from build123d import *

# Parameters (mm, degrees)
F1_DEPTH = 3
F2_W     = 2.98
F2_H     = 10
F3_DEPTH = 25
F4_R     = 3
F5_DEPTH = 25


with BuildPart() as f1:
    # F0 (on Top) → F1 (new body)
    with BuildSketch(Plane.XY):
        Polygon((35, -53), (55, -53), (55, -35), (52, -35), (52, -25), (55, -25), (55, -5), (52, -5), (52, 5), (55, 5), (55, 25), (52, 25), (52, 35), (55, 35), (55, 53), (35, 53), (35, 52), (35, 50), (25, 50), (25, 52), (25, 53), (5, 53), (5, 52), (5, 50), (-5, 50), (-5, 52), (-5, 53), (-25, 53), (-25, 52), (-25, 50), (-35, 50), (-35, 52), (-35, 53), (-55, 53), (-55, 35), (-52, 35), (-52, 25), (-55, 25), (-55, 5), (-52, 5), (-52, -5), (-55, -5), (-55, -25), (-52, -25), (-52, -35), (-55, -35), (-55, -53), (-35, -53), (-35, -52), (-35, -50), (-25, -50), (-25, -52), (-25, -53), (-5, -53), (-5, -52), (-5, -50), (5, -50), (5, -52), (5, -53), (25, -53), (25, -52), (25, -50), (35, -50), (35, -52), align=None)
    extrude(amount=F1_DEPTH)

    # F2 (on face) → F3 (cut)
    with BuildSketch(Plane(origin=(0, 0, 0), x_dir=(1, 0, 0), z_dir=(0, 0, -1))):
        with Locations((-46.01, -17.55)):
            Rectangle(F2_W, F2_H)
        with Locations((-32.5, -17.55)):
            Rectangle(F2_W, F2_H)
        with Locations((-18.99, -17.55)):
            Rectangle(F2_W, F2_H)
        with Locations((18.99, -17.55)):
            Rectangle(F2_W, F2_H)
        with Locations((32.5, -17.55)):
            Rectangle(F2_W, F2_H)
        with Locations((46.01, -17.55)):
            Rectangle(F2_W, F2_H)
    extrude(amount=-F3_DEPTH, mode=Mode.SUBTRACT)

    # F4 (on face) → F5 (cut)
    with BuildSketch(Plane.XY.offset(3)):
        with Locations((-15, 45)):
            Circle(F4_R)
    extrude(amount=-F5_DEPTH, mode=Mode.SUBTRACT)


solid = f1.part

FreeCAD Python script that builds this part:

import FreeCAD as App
import Part
import Sketcher

V = App.Vector
Q = App.Units.Quantity

doc = App.newDocument("Part")
body = doc.addObject("PartDesign::Body", "Body")

# Sketch on XY plane
sketch1 = body.newObject("Sketcher::SketchObject", "Sketch")
sketch1.AttachmentSupport = (doc.getObject("XY_Plane"), [""])
sketch1.MapMode = "FlatFace"
sketch1.addGeometry([
    Part.LineSegment(V(35, -53, 0), V(55, -53, 0)),  # 0
    Part.LineSegment(V(55, -53, 0), V(55, -35, 0)),  # 1
    Part.LineSegment(V(55, -35, 0), V(52, -35, 0)),  # 2
    Part.LineSegment(V(52, -35, 0), V(52, -25, 0)),  # 3
    Part.LineSegment(V(52, -25, 0), V(55, -25, 0)),  # 4
    Part.LineSegment(V(55, -25, 0), V(55, -5, 0)),  # 5
    Part.LineSegment(V(55, -5, 0), V(52, -5, 0)),  # 6
    Part.LineSegment(V(52, -5, 0), V(52, 5, 0)),  # 7
    Part.LineSegment(V(52, 5, 0), V(55, 5, 0)),  # 8
    Part.LineSegment(V(55, 5, 0), V(55, 25, 0)),  # 9
    Part.LineSegment(V(55, 25, 0), V(52, 25, 0)),  # 10
    Part.LineSegment(V(52, 25, 0), V(52, 35, 0)),  # 11
    Part.LineSegment(V(52, 35, 0), V(55, 35, 0)),  # 12
    Part.LineSegment(V(55, 35, 0), V(55, 53, 0)),  # 13
    Part.LineSegment(V(55, 53, 0), V(35, 53, 0)),  # 14
    Part.LineSegment(V(35, 53, 0), V(35, 50, 0)),  # 15
    Part.LineSegment(V(35, 50, 0), V(25, 50, 0)),  # 16
    Part.LineSegment(V(25, 50, 0), V(25, 53, 0)),  # 17
    Part.LineSegment(V(25, 53, 0), V(5, 53, 0)),  # 18
    Part.LineSegment(V(5, 53, 0), V(5, 50, 0)),  # 19
    Part.LineSegment(V(5, 50, 0), V(-5, 50, 0)),  # 20
    Part.LineSegment(V(-5, 50, 0), V(-5, 53, 0)),  # 21
    Part.LineSegment(V(-5, 53, 0), V(-25, 53, 0)),  # 22
    Part.LineSegment(V(-25, 53, 0), V(-25, 50, 0)),  # 23
    Part.LineSegment(V(-25, 50, 0), V(-35, 50, 0)),  # 24
    Part.LineSegment(V(-35, 50, 0), V(-35, 53, 0)),  # 25
    Part.LineSegment(V(-35, 53, 0), V(-55, 53, 0)),  # 26
    Part.LineSegment(V(-55, 53, 0), V(-55, 35, 0)),  # 27
    Part.LineSegment(V(-55, 35, 0), V(-52, 35, 0)),  # 28
    Part.LineSegment(V(-52, 35, 0), V(-52, 25, 0)),  # 29
    Part.LineSegment(V(-52, 25, 0), V(-55, 25, 0)),  # 30
    Part.LineSegment(V(-55, 25, 0), V(-55, 5, 0)),  # 31
    Part.LineSegment(V(-55, 5, 0), V(-52, 5, 0)),  # 32
    Part.LineSegment(V(-52, 5, 0), V(-52, -5, 0)),  # 33
    Part.LineSegment(V(-52, -5, 0), V(-55, -5, 0)),  # 34
    Part.LineSegment(V(-55, -5, 0), V(-55, -25, 0)),  # 35
    Part.LineSegment(V(-55, -25, 0), V(-52, -25, 0)),  # 36
    Part.LineSegment(V(-52, -25, 0), V(-52, -35, 0)),  # 37
    Part.LineSegment(V(-52, -35, 0), V(-55, -35, 0)),  # 38
    Part.LineSegment(V(-55, -35, 0), V(-55, -53, 0)),  # 39
    Part.LineSegment(V(-55, -53, 0), V(-35, -53, 0)),  # 40
    Part.LineSegment(V(-35, -53, 0), V(-35, -50, 0)),  # 41
    Part.LineSegment(V(-35, -50, 0), V(-25, -50, 0)),  # 42
    Part.LineSegment(V(-25, -50, 0), V(-25, -53, 0)),  # 43
    Part.LineSegment(V(-25, -53, 0), V(-5, -53, 0)),  # 44
    Part.LineSegment(V(-5, -53, 0), V(-5, -50, 0)),  # 45
    Part.LineSegment(V(-5, -50, 0), V(5, -50, 0)),  # 46
    Part.LineSegment(V(5, -50, 0), V(5, -53, 0)),  # 47
    Part.LineSegment(V(5, -53, 0), V(25, -53, 0)),  # 48
    Part.LineSegment(V(25, -53, 0), V(25, -50, 0)),  # 49
    Part.LineSegment(V(25, -50, 0), V(35, -50, 0)),  # 50
    Part.LineSegment(V(35, -50, 0), V(35, -53, 0)),  # 51
], False)
sketch1.addConstraint([
    Sketcher.Constraint("Coincident", 0, 2, 1, 1),
    Sketcher.Constraint("Coincident", 1, 2, 2, 1),
    Sketcher.Constraint("Coincident", 2, 2, 3, 1),
    Sketcher.Constraint("Coincident", 3, 2, 4, 1),
    Sketcher.Constraint("Coincident", 4, 2, 5, 1),
    Sketcher.Constraint("Coincident", 5, 2, 6, 1),
    Sketcher.Constraint("Coincident", 6, 2, 7, 1),
    Sketcher.Constraint("Coincident", 7, 2, 8, 1),
    Sketcher.Constraint("Coincident", 8, 2, 9, 1),
    Sketcher.Constraint("Coincident", 9, 2, 10, 1),
    Sketcher.Constraint("Coincident", 10, 2, 11, 1),
    Sketcher.Constraint("Coincident", 11, 2, 12, 1),
    Sketcher.Constraint("Coincident", 12, 2, 13, 1),
    Sketcher.Constraint("Coincident", 13, 2, 14, 1),
    Sketcher.Constraint("Coincident", 14, 2, 15, 1),
    Sketcher.Constraint("Coincident", 15, 2, 16, 1),
    Sketcher.Constraint("Coincident", 16, 2, 17, 1),
    Sketcher.Constraint("Coincident", 17, 2, 18, 1),
    Sketcher.Constraint("Coincident", 18, 2, 19, 1),
    Sketcher.Constraint("Coincident", 19, 2, 20, 1),
    Sketcher.Constraint("Coincident", 20, 2, 21, 1),
    Sketcher.Constraint("Coincident", 21, 2, 22, 1),
    Sketcher.Constraint("Coincident", 22, 2, 23, 1),
    Sketcher.Constraint("Coincident", 23, 2, 24, 1),
    Sketcher.Constraint("Coincident", 24, 2, 25, 1),
    Sketcher.Constraint("Coincident", 25, 2, 26, 1),
    Sketcher.Constraint("Coincident", 26, 2, 27, 1),
    Sketcher.Constraint("Coincident", 27, 2, 28, 1),
    Sketcher.Constraint("Coincident", 28, 2, 29, 1),
    Sketcher.Constraint("Coincident", 29, 2, 30, 1),
    Sketcher.Constraint("Coincident", 30, 2, 31, 1),
    Sketcher.Constraint("Coincident", 31, 2, 32, 1),
    Sketcher.Constraint("Coincident", 32, 2, 33, 1),
    Sketcher.Constraint("Coincident", 33, 2, 34, 1),
    Sketcher.Constraint("Coincident", 34, 2, 35, 1),
    Sketcher.Constraint("Coincident", 35, 2, 36, 1),
    Sketcher.Constraint("Coincident", 36, 2, 37, 1),
    Sketcher.Constraint("Coincident", 37, 2, 38, 1),
    Sketcher.Constraint("Coincident", 38, 2, 39, 1),
    Sketcher.Constraint("Coincident", 39, 2, 40, 1),
    Sketcher.Constraint("Coincident", 40, 2, 41, 1),
    Sketcher.Constraint("Coincident", 41, 2, 42, 1),
    Sketcher.Constraint("Coincident", 42, 2, 43, 1),
    Sketcher.Constraint("Coincident", 43, 2, 44, 1),
    Sketcher.Constraint("Coincident", 44, 2, 45, 1),
    Sketcher.Constraint("Coincident", 45, 2, 46, 1),
    Sketcher.Constraint("Coincident", 46, 2, 47, 1),
    Sketcher.Constraint("Coincident", 47, 2, 48, 1),
    Sketcher.Constraint("Coincident", 48, 2, 49, 1),
    Sketcher.Constraint("Coincident", 49, 2, 50, 1),
    Sketcher.Constraint("Coincident", 50, 2, 51, 1),
    Sketcher.Constraint("Coincident", 51, 2, 0, 1),
    Sketcher.Constraint("Horizontal", 0),
    Sketcher.Constraint("Vertical", 1),
    Sketcher.Constraint("Horizontal", 2),
    Sketcher.Constraint("Vertical", 3),
    Sketcher.Constraint("Horizontal", 4),
    Sketcher.Constraint("Vertical", 5),
    Sketcher.Constraint("Horizontal", 6),
    Sketcher.Constraint("Vertical", 7),
    Sketcher.Constraint("Horizontal", 8),
    Sketcher.Constraint("Vertical", 9),
    Sketcher.Constraint("Horizontal", 10),
    Sketcher.Constraint("Vertical", 11),
    Sketcher.Constraint("Horizontal", 12),
    Sketcher.Constraint("Vertical", 13),
    Sketcher.Constraint("Horizontal", 14),
    Sketcher.Constraint("Vertical", 15),
    Sketcher.Constraint("Horizontal", 16),
    Sketcher.Constraint("Vertical", 17),
    Sketcher.Constraint("Horizontal", 18),
    Sketcher.Constraint("Vertical", 19),
    Sketcher.Constraint("Horizontal", 20),
    Sketcher.Constraint("Vertical", 21),
    Sketcher.Constraint("Horizontal", 22),
    Sketcher.Constraint("Vertical", 23),
    Sketcher.Constraint("Horizontal", 24),
    Sketcher.Constraint("Vertical", 25),
    Sketcher.Constraint("Horizontal", 26),
    Sketcher.Constraint("Vertical", 27),
    Sketcher.Constraint("Horizontal", 28),
    Sketcher.Constraint("Vertical", 29),
    Sketcher.Constraint("Horizontal", 30),
    Sketcher.Constraint("Vertical", 31),
    Sketcher.Constraint("Horizontal", 32),
    Sketcher.Constraint("Vertical", 33),
    Sketcher.Constraint("Horizontal", 34),
    Sketcher.Constraint("Vertical", 35),
    Sketcher.Constraint("Horizontal", 36),
    Sketcher.Constraint("Vertical", 37),
    Sketcher.Constraint("Horizontal", 38),
    Sketcher.Constraint("Vertical", 39),
    Sketcher.Constraint("Horizontal", 40),
    Sketcher.Constraint("Vertical", 41),
    Sketcher.Constraint("Horizontal", 42),
    Sketcher.Constraint("Vertical", 43),
    Sketcher.Constraint("Horizontal", 44),
    Sketcher.Constraint("Vertical", 45),
    Sketcher.Constraint("Horizontal", 46),
    Sketcher.Constraint("Vertical", 47),
    Sketcher.Constraint("Horizontal", 48),
    Sketcher.Constraint("Vertical", 49),
    Sketcher.Constraint("Horizontal", 50),
    Sketcher.Constraint("Vertical", 51),
    Sketcher.Constraint("Symmetric", 0, 2, 26, 2, -1, 1),
    Sketcher.Constraint("Symmetric", 2, 2, 28, 2, -1, 1),
    Sketcher.Constraint("Symmetric", 4, 2, 30, 2, -1, 1),
    Sketcher.Constraint("Symmetric", 6, 2, 32, 2, -1, 1),
    Sketcher.Constraint("Symmetric", 8, 2, 34, 2, -1, 1),
    Sketcher.Constraint("Symmetric", 10, 2, 36, 2, -1, 1),
    Sketcher.Constraint("Symmetric", 12, 2, 38, 2, -1, 1),
    Sketcher.Constraint("Symmetric", 14, 2, 40, 2, -1, 1),
    Sketcher.Constraint("Symmetric", 16, 2, 42, 2, -1, 1),
    Sketcher.Constraint("Symmetric", 18, 2, 44, 2, -1, 1),
    Sketcher.Constraint("Symmetric", 20, 2, 46, 2, -1, 1),
    Sketcher.Constraint("Symmetric", 22, 2, 48, 2, -1, 1),
    Sketcher.Constraint("Symmetric", 24, 2, 50, 2, -1, 1),
    Sketcher.Constraint("Symmetric", 18, 2, 21, 2, -2),
    Sketcher.Constraint("Symmetric", 16, 2, 23, 2, -2),
    Sketcher.Constraint("Symmetric", 14, 2, 25, 2, -2),
    Sketcher.Constraint("Symmetric", 12, 2, 27, 2, -2),
    Sketcher.Constraint("Symmetric", 10, 2, 29, 2, -2),
    Sketcher.Constraint("Symmetric", 8, 2, 31, 2, -2),
    Sketcher.Constraint("Horizontal", 14, 2, 17, 2),
    Sketcher.Constraint("Horizontal", 16, 2, 19, 2),
    Sketcher.Constraint("Vertical", 1, 2, 4, 2),
    Sketcher.Constraint("Vertical", 3, 2, 6, 2),
    Sketcher.Constraint("Equal", 14, 18),
    Sketcher.Constraint("Equal", 16, 20),
    Sketcher.Constraint("Equal", 50, 3),
    Sketcher.Constraint("Equal", 48, 5),
    Sketcher.Constraint("Equal", 3, 7),
    Sketcher.Constraint("Equal", 38, 15),
    Sketcher.Constraint("DistanceX", 0, 1, 0, 2, Q("20 mm")),
    Sketcher.Constraint("DistanceX", 2, 2, 2, 1, Q("3 mm")),
    Sketcher.Constraint("DistanceX", 16, 2, 16, 1, Q("10 mm")),
    Sketcher.Constraint("DistanceY", 1, 1, 1, 2, Q("18 mm")),
])
pad1 = body.newObject("PartDesign::Pad", "Pad")
pad1.Profile = sketch1
pad1.Length = 3

# Sketch on XY plane
sketch2 = body.newObject("Sketcher::SketchObject", "Sketch001")
sketch2.AttachmentSupport = (doc.getObject("XY_Plane"), [""])
sketch2.MapMode = "FlatFace"
sketch2.addGeometry([
    Part.LineSegment(V(-47.5, 12.55, 0), V(-47.5, 22.55, 0)),  # 0
    Part.LineSegment(V(-47.5, 22.55, 0), V(-44.52, 22.55, 0)),  # 1
    Part.LineSegment(V(-44.52, 22.55, 0), V(-44.52, 12.55, 0)),  # 2
    Part.LineSegment(V(-44.52, 12.55, 0), V(-47.5, 12.55, 0)),  # 3
    Part.LineSegment(V(-33.99, 12.55, 0), V(-33.99, 22.55, 0)),  # 4
    Part.LineSegment(V(-33.99, 22.55, 0), V(-31.01, 22.55, 0)),  # 5
    Part.LineSegment(V(-31.01, 22.55, 0), V(-31.01, 12.55, 0)),  # 6
    Part.LineSegment(V(-31.01, 12.55, 0), V(-33.99, 12.55, 0)),  # 7
    Part.LineSegment(V(-20.48, 12.55, 0), V(-20.48, 22.55, 0)),  # 8
    Part.LineSegment(V(-20.48, 22.55, 0), V(-17.5, 22.55, 0)),  # 9
    Part.LineSegment(V(-17.5, 22.55, 0), V(-17.5, 12.55, 0)),  # 10
    Part.LineSegment(V(-17.5, 12.55, 0), V(-20.48, 12.55, 0)),  # 11
    Part.LineSegment(V(17.5, 12.55, 0), V(17.5, 22.55, 0)),  # 12
    Part.LineSegment(V(17.5, 22.55, 0), V(20.48, 22.55, 0)),  # 13
    Part.LineSegment(V(20.48, 22.55, 0), V(20.48, 12.55, 0)),  # 14
    Part.LineSegment(V(20.48, 12.55, 0), V(17.5, 12.55, 0)),  # 15
    Part.LineSegment(V(31.01, 12.55, 0), V(31.01, 22.55, 0)),  # 16
    Part.LineSegment(V(31.01, 22.55, 0), V(33.99, 22.55, 0)),  # 17
    Part.LineSegment(V(33.99, 22.55, 0), V(33.99, 12.55, 0)),  # 18
    Part.LineSegment(V(33.99, 12.55, 0), V(31.01, 12.55, 0)),  # 19
    Part.LineSegment(V(44.52, 12.55, 0), V(44.52, 22.55, 0)),  # 20
    Part.LineSegment(V(44.52, 22.55, 0), V(47.5, 22.55, 0)),  # 21
    Part.LineSegment(V(47.5, 22.55, 0), V(47.5, 12.55, 0)),  # 22
    Part.LineSegment(V(47.5, 12.55, 0), V(44.52, 12.55, 0)),  # 23
], False)
sketch2.addConstraint([
    Sketcher.Constraint("Coincident", 0, 2, 1, 1),
    Sketcher.Constraint("Coincident", 1, 2, 2, 1),
    Sketcher.Constraint("Coincident", 2, 2, 3, 1),
    Sketcher.Constraint("Coincident", 3, 2, 0, 1),
    Sketcher.Constraint("Coincident", 4, 2, 5, 1),
    Sketcher.Constraint("Coincident", 5, 2, 6, 1),
    Sketcher.Constraint("Coincident", 6, 2, 7, 1),
    Sketcher.Constraint("Coincident", 7, 2, 4, 1),
    Sketcher.Constraint("Coincident", 8, 2, 9, 1),
    Sketcher.Constraint("Coincident", 9, 2, 10, 1),
    Sketcher.Constraint("Coincident", 10, 2, 11, 1),
    Sketcher.Constraint("Coincident", 11, 2, 8, 1),
    Sketcher.Constraint("Coincident", 12, 2, 13, 1),
    Sketcher.Constraint("Coincident", 13, 2, 14, 1),
    Sketcher.Constraint("Coincident", 14, 2, 15, 1),
    Sketcher.Constraint("Coincident", 15, 2, 12, 1),
    Sketcher.Constraint("Coincident", 16, 2, 17, 1),
    Sketcher.Constraint("Coincident", 17, 2, 18, 1),
    Sketcher.Constraint("Coincident", 18, 2, 19, 1),
    Sketcher.Constraint("Coincident", 19, 2, 16, 1),
    Sketcher.Constraint("Coincident", 20, 2, 21, 1),
    Sketcher.Constraint("Coincident", 21, 2, 22, 1),
    Sketcher.Constraint("Coincident", 22, 2, 23, 1),
    Sketcher.Constraint("Coincident", 23, 2, 20, 1),
    Sketcher.Constraint("Vertical", 0),
    Sketcher.Constraint("Horizontal", 1),
    Sketcher.Constraint("Vertical", 2),
    Sketcher.Constraint("Horizontal", 3),
    Sketcher.Constraint("Vertical", 4),
    Sketcher.Constraint("Horizontal", 5),
    Sketcher.Constraint("Vertical", 6),
    Sketcher.Constraint("Horizontal", 7),
    Sketcher.Constraint("Vertical", 8),
    Sketcher.Constraint("Horizontal", 9),
    Sketcher.Constraint("Vertical", 10),
    Sketcher.Constraint("Horizontal", 11),
    Sketcher.Constraint("Vertical", 12),
    Sketcher.Constraint("Horizontal", 13),
    Sketcher.Constraint("Vertical", 14),
    Sketcher.Constraint("Horizontal", 15),
    Sketcher.Constraint("Vertical", 16),
    Sketcher.Constraint("Horizontal", 17),
    Sketcher.Constraint("Vertical", 18),
    Sketcher.Constraint("Horizontal", 19),
    Sketcher.Constraint("Vertical", 20),
    Sketcher.Constraint("Horizontal", 21),
    Sketcher.Constraint("Vertical", 22),
    Sketcher.Constraint("Horizontal", 23),
    Sketcher.Constraint("Symmetric", 9, 2, 12, 2, -2),
    Sketcher.Constraint("Symmetric", 11, 2, 14, 2, -2),
    Sketcher.Constraint("Symmetric", 5, 2, 16, 2, -2),
    Sketcher.Constraint("Symmetric", 7, 2, 18, 2, -2),
    Sketcher.Constraint("Symmetric", 1, 2, 20, 2, -2),
    Sketcher.Constraint("Symmetric", 3, 2, 22, 2, -2),
    Sketcher.Constraint("Horizontal", 1, 2, 4, 2),
    Sketcher.Constraint("Horizontal", 3, 2, 6, 2),
    Sketcher.Constraint("Horizontal", 5, 2, 8, 2),
    Sketcher.Constraint("Horizontal", 7, 2, 10, 2),
    Sketcher.Constraint("Equal", 3, 5),
    Sketcher.Constraint("Equal", 7, 9),
    Sketcher.Constraint("DistanceY", 0, 1, 0, 2, Q("10 mm")),
    Sketcher.Constraint("DistanceX", 9, 2, 12, 2, Q("35 mm")),
    Sketcher.Constraint("DistanceX", 1, 1, 1, 2, Q("2.98 mm")),
    Sketcher.Constraint("DistanceX", 0, 2, -1, 1, Q("47.5 mm")),
    Sketcher.Constraint("DistanceY", -1, 1, 0, 2, Q("22.55 mm")),
    Sketcher.Constraint("DistanceX", 4, 2, -1, 1, Q("33.99 mm")),
])
pocket1 = body.newObject("PartDesign::Pocket", "Pocket")
pocket1.Profile = sketch2
pocket1.Length = 25
pocket1.Reversed = True

# Sketch on XY plane
sketch3 = body.newObject("Sketcher::SketchObject", "Sketch002")
sketch3.AttachmentSupport = (doc.getObject("XY_Plane"), [""])
sketch3.MapMode = "FlatFace"
sketch3.AttachmentOffset = App.Placement(V(0, 0, 3), App.Rotation())
sketch3.addGeometry(Part.Circle(V(-15, 45, 0), V(0, 0, 1), 3), False)
sketch3.addConstraint([
    Sketcher.Constraint("Diameter", 0, Q("6 mm")),
    Sketcher.Constraint("DistanceX", 0, 3, -1, 1, Q("15 mm")),
    Sketcher.Constraint("DistanceY", -1, 1, 0, 3, Q("45 mm")),
])
pocket2 = body.newObject("PartDesign::Pocket", "Pocket001")
pocket2.Profile = sketch3
pocket2.Length = 25

doc.recompute()
